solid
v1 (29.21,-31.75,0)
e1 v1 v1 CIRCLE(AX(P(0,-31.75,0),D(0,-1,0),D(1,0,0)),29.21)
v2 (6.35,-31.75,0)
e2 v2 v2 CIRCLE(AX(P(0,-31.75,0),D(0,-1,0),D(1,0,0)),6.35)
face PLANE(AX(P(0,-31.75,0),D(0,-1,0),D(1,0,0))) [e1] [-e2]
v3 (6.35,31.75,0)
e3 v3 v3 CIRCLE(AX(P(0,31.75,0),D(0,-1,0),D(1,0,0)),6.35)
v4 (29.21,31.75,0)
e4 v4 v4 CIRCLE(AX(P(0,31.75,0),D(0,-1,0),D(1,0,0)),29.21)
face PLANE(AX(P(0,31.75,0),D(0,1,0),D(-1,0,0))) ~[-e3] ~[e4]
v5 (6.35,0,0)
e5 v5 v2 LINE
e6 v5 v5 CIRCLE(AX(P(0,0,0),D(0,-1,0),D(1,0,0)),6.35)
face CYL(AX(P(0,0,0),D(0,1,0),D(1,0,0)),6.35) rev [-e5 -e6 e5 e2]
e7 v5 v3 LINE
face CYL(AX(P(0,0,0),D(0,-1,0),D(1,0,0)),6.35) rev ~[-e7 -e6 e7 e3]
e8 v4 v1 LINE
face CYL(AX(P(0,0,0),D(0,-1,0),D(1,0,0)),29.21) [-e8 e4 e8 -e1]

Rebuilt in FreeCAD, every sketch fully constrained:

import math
import FreeCAD as App
import Part
import Sketcher
from FreeCAD import Vector
Q = App.Units.Quantity

doc = App.newDocument("Part")
body = doc.addObject("PartDesign::Body", "Body")

sketch1 = doc.addObject("Sketcher::SketchObject", "Sketch")
body.addObject(sketch1)
sketch1.AttachmentSupport = (doc.XZ_Plane, [""])
sketch1.MapMode = "FlatFace"
sketch1.addGeometry([
    Part.Circle(Vector(0, 0, 0), Vector(0, 0, 1), 29.21),
    Part.ArcOfCircle(Part.Circle(Vector(0, 0, 0), Vector(0, 0, 1), 24.13), math.radians(26.825853), math.radians(32.859799)),
    Part.ArcOfCircle(Part.Circle(Vector(0, 0, 0), Vector(0, 0, 1), 24.13), math.radians(0), math.radians(26.825853)),
    Part.ArcOfCircle(Part.Circle(Vector(0, 0, 0), Vector(0, 0, 1), 24.13), math.radians(-87.137783), math.radians(0)),
    Part.ArcOfCircle(Part.Circle(Vector(0, 0, 0), Vector(0, 0, 1), 24.13), math.radians(-93.171728), math.radians(-87.137783)),
    Part.ArcOfCircle(Part.Circle(Vector(0, 0, 0), Vector(0, 0, 1), 24.13), math.radians(150.487484), math.radians(266.828272)),
    Part.ArcOfCircle(Part.Circle(Vector(0, 0, 0), Vector(0, 0, 1), 24.13), math.radians(144.447658), math.radians(150.487484)),
    Part.ArcOfCircle(Part.Circle(Vector(0, 0, 0), Vector(0, 0, 1), 24.13), math.radians(32.859799), math.radians(144.447658)),
], False)
sketch1.addConstraint([
    Sketcher.Constraint("Tangent", 1, 1, 2, 2),
    Sketcher.Constraint("Tangent", 2, 1, 3, 2),
    Sketcher.Constraint("Tangent", 3, 1, 4, 2),
    Sketcher.Constraint("Tangent", 4, 1, 5, 2),
    Sketcher.Constraint("Tangent", 5, 1, 6, 2),
    Sketcher.Constraint("Tangent", 6, 1, 7, 2),
    Sketcher.Constraint("Tangent", 7, 1, 1, 2),
    Sketcher.Constraint("Coincident", 0, 3, -1, 1),
    Sketcher.Constraint("Coincident", 1, 3, -1, 1),
    Sketcher.Constraint("Coincident", 3, 3, -1, 1),
    Sketcher.Constraint("Coincident", 5, 3, -1, 1),
    Sketcher.Constraint("PointOnObject", 2, 1, -1),
    Sketcher.Constraint("Diameter", 0, Q("2.3 in")),
    Sketcher.Constraint("Radius", 1, Q("0.95 in")),
    Sketcher.Constraint("DistanceX", 4, 1, 3, 1, Q("0.1 in")),
    Sketcher.Constraint("DistanceX", 6, 1, -1, 1, 19.631798),
    Sketcher.Constraint("DistanceX", -1, 1, 7, 1, 20.269219),
    Sketcher.Constraint("DistanceY", 3, 1, 4, 1, 0.006861),
    Sketcher.Constraint("DistanceX", 5, 1, 6, 1, 1.367289),
    Sketcher.Constraint("DistanceY", 1, 1, 7, 1, 2.203188),
])
pad1 = doc.addObject("PartDesign::Pad", "Pad")
body.addObject(pad1)
pad1.Profile = sketch1
pad1.Length = Q("1.25 in")
body2 = doc.addObject("PartDesign::Body", "Body001")

sketch2 = doc.addObject("Sketcher::SketchObject", "Sketch001")
body2.addObject(sketch2)
sketch2.AttachmentSupport = (doc.getObject("XZ_Plane001"), [""])
sketch2.MapMode = "FlatFace"
sketch2.addGeometry([
    Part.ArcOfCircle(Part.Circle(Vector(0, 0, 0), Vector(0, 0, 1), 8.89), math.radians(0), math.radians(21.356113)),
    Part.ArcOfCircle(Part.Circle(Vector(0, 0, 0), Vector(0, 0, 1), 8.89), math.radians(21.356113), math.radians(37.783001)),
    Part.ArcOfCircle(Part.Circle(Vector(0, 0, 0), Vector(0, 0, 1), 8.89), math.radians(37.783001), math.radians(134.774368)),
    Part.ArcOfCircle(Part.Circle(Vector(0, 0, 0), Vector(0, 0, 1), 8.89), math.radians(134.774368), math.radians(151.323273)),
    Part.ArcOfCircle(Part.Circle(Vector(0, 0, 0), Vector(0, 0, 1), 8.89), math.radians(151.323273), math.radians(261.362743)),
    Part.ArcOfCircle(Part.Circle(Vector(0, 0, 0), Vector(0, 0, 1), 8.89), math.radians(-98.637257), math.radians(-82.210383)),
    Part.ArcOfCircle(Part.Circle(Vector(0, 0, 0), Vector(0, 0, 1), 8.89), math.radians(-82.210383), math.radians(0)),
    Part.Circle(Vector(0, 0, 0), Vector(0, 0, 1), 6.35),
], False)
sketch2.addConstraint([
    Sketcher.Constraint("Tangent", 0, 2, 1, 1),
    Sketcher.Constraint("Tangent", 1, 2, 2, 1),
    Sketcher.Constraint("Tangent", 2, 2, 3, 1),
    Sketcher.Constraint("Tangent", 3, 2, 4, 1),
    Sketcher.Constraint("Tangent", 4, 2, 5, 1),
    Sketcher.Constraint("Tangent", 5, 2, 6, 1),
    Sketcher.Constraint("Tangent", 6, 2, 0, 1),
    Sketcher.Constraint("Coincident", 0, 3, -1, 1),
    Sketcher.Constraint("Coincident", 2, 3, -1, 1),
    Sketcher.Constraint("Coincident", 4, 3, -1, 1),
    Sketcher.Constraint("Coincident", 7, 3, -1, 1),
    Sketcher.Constraint("PointOnObject", 6, 2, -1),
    Sketcher.Constraint("Diameter", 7, Q("0.5 in")),
    Sketcher.Constraint("Radius", 0, Q("0.35 in")),
    Sketcher.Constraint("DistanceX", 4, 2, 5, 2, Q("0.1 in")),
    Sketcher.Constraint("DistanceX", -1, 1, 0, 2, 8.279568),
    Sketcher.Constraint("DistanceY", -1, 1, 1, 2, 5.446659),
    Sketcher.Constraint("DistanceY", -1, 1, 3, 2, 4.266019),
    Sketcher.Constraint("DistanceY", 5, 2, 4, 2, 0.018789),
    Sketcher.Constraint("DistanceX", 2, 2, -1, 1, 6.261376),
])
pad2 = doc.addObject("PartDesign::Pad", "Pad001")
body2.addObject(pad2)
pad2.Profile = sketch2
pad2.Length = Q("1.25 in")
body.AllowCompound = True
doc.recompute()

boolean = doc.addObject("PartDesign::Boolean", "Boolean")
body.addObject(boolean)
boolean.Type = "Fuse"
boolean.addObjects([body2])

sketch3 = doc.addObject("Sketcher::SketchObject", "Sketch002")
body.addObject(sketch3)
sketch3.AttachmentSupport = (doc.XZ_Plane, [""])
sketch3.MapMode = "FlatFace"
sketch3.addGeometry([
    Part.ArcOfCircle(Part.Circle(Vector(0, 0, 0), Vector(0, 0, 1), 24.13), math.radians(144.447658), math.radians(150.487484)),
    Part.ArcOfCircle(Part.Circle(Vector(0, 0, 0), Vector(0, 0, 1), 24.13), math.radians(150.487484), math.radians(266.828272)),
    Part.ArcOfCircle(Part.Circle(Vector(0, 0, 0), Vector(0, 0, 1), 24.13), math.radians(-93.171728), math.radians(-87.137783)),
    Part.ArcOfCircle(Part.Circle(Vector(0, 0, 0), Vector(0, 0, 1), 24.13), math.radians(-87.137783), math.radians(0)),
    Part.ArcOfCircle(Part.Circle(Vector(0, 0, 0), Vector(0, 0, 1), 24.13), math.radians(0), math.radians(26.825853)),
    Part.ArcOfCircle(Part.Circle(Vector(0, 0, 0), Vector(0, 0, 1), 24.13), math.radians(26.825853), math.radians(32.859799)),
    Part.ArcOfCircle(Part.Circle(Vector(0, 0, 0), Vector(0, 0, 1), 24.13), math.radians(32.859799), math.radians(144.447658)),
    Part.ArcOfCircle(Part.Circle(Vector(0, 0, 0), Vector(0, 0, 1), 8.89), math.radians(-98.637257), math.radians(-82.210383)),
    Part.ArcOfCircle(Part.Circle(Vector(0, 0, 0), Vector(0, 0, 1), 8.89), math.radians(151.323273), math.radians(261.362743)),
    Part.ArcOfCircle(Part.Circle(Vector(0, 0, 0), Vector(0, 0, 1), 8.89), math.radians(134.774368), math.radians(151.323273)),
    Part.ArcOfCircle(Part.Circle(Vector(0, 0, 0), Vector(0, 0, 1), 8.89), math.radians(37.783001), math.radians(134.774368)),
    Part.ArcOfCircle(Part.Circle(Vector(0, 0, 0), Vector(0, 0, 1), 8.89), math.radians(21.356113), math.radians(37.783001)),
    Part.ArcOfCircle(Part.Circle(Vector(0, 0, 0), Vector(0, 0, 1), 8.89), math.radians(0), math.radians(21.356113)),
    Part.ArcOfCircle(Part.Circle(Vector(0, 0, 0), Vector(0, 0, 1), 8.89), math.radians(-82.210383), math.radians(0)),
], False)
sketch3.addConstraint([
    Sketcher.Constraint("Tangent", 0, 2, 1, 1),
    Sketcher.Constraint("Tangent", 1, 2, 2, 1),
    Sketcher.Constraint("Tangent", 2, 2, 3, 1),
    Sketcher.Constraint("Tangent", 3, 2, 4, 1),
    Sketcher.Constraint("Tangent", 4, 2, 5, 1),
    Sketcher.Constraint("Tangent", 5, 2, 6, 1),
    Sketcher.Constraint("Tangent", 6, 2, 0, 1),
    Sketcher.Constraint("Tangent", 7, 1, 8, 2),
    Sketcher.Constraint("Tangent", 8, 1, 9, 2),
    Sketcher.Constraint("Tangent", 9, 1, 10, 2),
    Sketcher.Constraint("Tangent", 10, 1, 11, 2),
    Sketcher.Constraint("Tangent", 11, 1, 12, 2),
    Sketcher.Constraint("Tangent", 12, 1, 13, 2),
    Sketcher.Constraint("Tangent", 13, 1, 7, 2),
    Sketcher.Constraint("Coincident", 0, 3, -1, 1),
    Sketcher.Constraint("Coincident", 2, 3, -1, 1),
    Sketcher.Constraint("Coincident", 4, 3, -1, 1),
    Sketcher.Constraint("Coincident", 7, 3, -1, 1),
    Sketcher.Constraint("Coincident", 9, 3, -1, 1),
    Sketcher.Constraint("Coincident", 11, 3, -1, 1),
    Sketcher.Constraint("PointOnObject", 3, 2, -1),
    Sketcher.Constraint("PointOnObject", 12, 1, -1),
    Sketcher.Constraint("Vertical", 1, 2, 7, 1),
    Sketcher.Constraint("Vertical", 2, 2, 13, 1),
    Sketcher.Constraint("Radius", 0, Q("0.95 in")),
    Sketcher.Constraint("Radius", 7, Q("0.35 in")),
    Sketcher.Constraint("DistanceX", 1, 2, 2, 2, Q("0.1 in")),
    Sketcher.Constraint("DistanceX", 6, 2, -1, 1, 19.631798),
    Sketcher.Constraint("DistanceX", -1, 1, 5, 2, 20.269219),
    Sketcher.Constraint("DistanceY", -1, 1, 8, 1, 4.266019),
    Sketcher.Constraint("DistanceY", -1, 1, 10, 1, 5.446659),
    Sketcher.Constraint("DistanceX", -1, 1, 11, 1, 8.279568),
    Sketcher.Constraint("DistanceY", 2, 2, 1, 2, 0.006861),
    Sketcher.Constraint("DistanceY", 4, 2, 5, 2, 2.203188),
    Sketcher.Constraint("DistanceX", 0, 2, 6, 2, 1.367289),
    Sketcher.Constraint("DistanceX", 9, 1, -1, 1, 6.261376),
])
pad3 = doc.addObject("PartDesign::Pad", "Pad002")
body.addObject(pad3)
pad3.Profile = sketch3
pad3.Length = Q("1.25 in")
body3 = doc.addObject("PartDesign::Body", "Body002")
doc.recompute()

body3.BaseFeature = body
doc.recompute()

mirroring = doc.addObject("Part::Mirroring", "Mirroring")
mirroring.Source = body
mirroring.Base = Vector(0, 0, 0)
mirroring.Normal = Vector(0, -1, 0)
body4 = doc.addObject("PartDesign::Body", "Body003")
body4.BaseFeature = mirroring
boolean2 = doc.addObject("PartDesign::Boolean", "Boolean001")
body3.addObject(boolean2)
boolean2.Type = "Fuse"
boolean2.addObjects([body4])
doc.recompute()
mirroring.Visibility = False

doc.recompute()
